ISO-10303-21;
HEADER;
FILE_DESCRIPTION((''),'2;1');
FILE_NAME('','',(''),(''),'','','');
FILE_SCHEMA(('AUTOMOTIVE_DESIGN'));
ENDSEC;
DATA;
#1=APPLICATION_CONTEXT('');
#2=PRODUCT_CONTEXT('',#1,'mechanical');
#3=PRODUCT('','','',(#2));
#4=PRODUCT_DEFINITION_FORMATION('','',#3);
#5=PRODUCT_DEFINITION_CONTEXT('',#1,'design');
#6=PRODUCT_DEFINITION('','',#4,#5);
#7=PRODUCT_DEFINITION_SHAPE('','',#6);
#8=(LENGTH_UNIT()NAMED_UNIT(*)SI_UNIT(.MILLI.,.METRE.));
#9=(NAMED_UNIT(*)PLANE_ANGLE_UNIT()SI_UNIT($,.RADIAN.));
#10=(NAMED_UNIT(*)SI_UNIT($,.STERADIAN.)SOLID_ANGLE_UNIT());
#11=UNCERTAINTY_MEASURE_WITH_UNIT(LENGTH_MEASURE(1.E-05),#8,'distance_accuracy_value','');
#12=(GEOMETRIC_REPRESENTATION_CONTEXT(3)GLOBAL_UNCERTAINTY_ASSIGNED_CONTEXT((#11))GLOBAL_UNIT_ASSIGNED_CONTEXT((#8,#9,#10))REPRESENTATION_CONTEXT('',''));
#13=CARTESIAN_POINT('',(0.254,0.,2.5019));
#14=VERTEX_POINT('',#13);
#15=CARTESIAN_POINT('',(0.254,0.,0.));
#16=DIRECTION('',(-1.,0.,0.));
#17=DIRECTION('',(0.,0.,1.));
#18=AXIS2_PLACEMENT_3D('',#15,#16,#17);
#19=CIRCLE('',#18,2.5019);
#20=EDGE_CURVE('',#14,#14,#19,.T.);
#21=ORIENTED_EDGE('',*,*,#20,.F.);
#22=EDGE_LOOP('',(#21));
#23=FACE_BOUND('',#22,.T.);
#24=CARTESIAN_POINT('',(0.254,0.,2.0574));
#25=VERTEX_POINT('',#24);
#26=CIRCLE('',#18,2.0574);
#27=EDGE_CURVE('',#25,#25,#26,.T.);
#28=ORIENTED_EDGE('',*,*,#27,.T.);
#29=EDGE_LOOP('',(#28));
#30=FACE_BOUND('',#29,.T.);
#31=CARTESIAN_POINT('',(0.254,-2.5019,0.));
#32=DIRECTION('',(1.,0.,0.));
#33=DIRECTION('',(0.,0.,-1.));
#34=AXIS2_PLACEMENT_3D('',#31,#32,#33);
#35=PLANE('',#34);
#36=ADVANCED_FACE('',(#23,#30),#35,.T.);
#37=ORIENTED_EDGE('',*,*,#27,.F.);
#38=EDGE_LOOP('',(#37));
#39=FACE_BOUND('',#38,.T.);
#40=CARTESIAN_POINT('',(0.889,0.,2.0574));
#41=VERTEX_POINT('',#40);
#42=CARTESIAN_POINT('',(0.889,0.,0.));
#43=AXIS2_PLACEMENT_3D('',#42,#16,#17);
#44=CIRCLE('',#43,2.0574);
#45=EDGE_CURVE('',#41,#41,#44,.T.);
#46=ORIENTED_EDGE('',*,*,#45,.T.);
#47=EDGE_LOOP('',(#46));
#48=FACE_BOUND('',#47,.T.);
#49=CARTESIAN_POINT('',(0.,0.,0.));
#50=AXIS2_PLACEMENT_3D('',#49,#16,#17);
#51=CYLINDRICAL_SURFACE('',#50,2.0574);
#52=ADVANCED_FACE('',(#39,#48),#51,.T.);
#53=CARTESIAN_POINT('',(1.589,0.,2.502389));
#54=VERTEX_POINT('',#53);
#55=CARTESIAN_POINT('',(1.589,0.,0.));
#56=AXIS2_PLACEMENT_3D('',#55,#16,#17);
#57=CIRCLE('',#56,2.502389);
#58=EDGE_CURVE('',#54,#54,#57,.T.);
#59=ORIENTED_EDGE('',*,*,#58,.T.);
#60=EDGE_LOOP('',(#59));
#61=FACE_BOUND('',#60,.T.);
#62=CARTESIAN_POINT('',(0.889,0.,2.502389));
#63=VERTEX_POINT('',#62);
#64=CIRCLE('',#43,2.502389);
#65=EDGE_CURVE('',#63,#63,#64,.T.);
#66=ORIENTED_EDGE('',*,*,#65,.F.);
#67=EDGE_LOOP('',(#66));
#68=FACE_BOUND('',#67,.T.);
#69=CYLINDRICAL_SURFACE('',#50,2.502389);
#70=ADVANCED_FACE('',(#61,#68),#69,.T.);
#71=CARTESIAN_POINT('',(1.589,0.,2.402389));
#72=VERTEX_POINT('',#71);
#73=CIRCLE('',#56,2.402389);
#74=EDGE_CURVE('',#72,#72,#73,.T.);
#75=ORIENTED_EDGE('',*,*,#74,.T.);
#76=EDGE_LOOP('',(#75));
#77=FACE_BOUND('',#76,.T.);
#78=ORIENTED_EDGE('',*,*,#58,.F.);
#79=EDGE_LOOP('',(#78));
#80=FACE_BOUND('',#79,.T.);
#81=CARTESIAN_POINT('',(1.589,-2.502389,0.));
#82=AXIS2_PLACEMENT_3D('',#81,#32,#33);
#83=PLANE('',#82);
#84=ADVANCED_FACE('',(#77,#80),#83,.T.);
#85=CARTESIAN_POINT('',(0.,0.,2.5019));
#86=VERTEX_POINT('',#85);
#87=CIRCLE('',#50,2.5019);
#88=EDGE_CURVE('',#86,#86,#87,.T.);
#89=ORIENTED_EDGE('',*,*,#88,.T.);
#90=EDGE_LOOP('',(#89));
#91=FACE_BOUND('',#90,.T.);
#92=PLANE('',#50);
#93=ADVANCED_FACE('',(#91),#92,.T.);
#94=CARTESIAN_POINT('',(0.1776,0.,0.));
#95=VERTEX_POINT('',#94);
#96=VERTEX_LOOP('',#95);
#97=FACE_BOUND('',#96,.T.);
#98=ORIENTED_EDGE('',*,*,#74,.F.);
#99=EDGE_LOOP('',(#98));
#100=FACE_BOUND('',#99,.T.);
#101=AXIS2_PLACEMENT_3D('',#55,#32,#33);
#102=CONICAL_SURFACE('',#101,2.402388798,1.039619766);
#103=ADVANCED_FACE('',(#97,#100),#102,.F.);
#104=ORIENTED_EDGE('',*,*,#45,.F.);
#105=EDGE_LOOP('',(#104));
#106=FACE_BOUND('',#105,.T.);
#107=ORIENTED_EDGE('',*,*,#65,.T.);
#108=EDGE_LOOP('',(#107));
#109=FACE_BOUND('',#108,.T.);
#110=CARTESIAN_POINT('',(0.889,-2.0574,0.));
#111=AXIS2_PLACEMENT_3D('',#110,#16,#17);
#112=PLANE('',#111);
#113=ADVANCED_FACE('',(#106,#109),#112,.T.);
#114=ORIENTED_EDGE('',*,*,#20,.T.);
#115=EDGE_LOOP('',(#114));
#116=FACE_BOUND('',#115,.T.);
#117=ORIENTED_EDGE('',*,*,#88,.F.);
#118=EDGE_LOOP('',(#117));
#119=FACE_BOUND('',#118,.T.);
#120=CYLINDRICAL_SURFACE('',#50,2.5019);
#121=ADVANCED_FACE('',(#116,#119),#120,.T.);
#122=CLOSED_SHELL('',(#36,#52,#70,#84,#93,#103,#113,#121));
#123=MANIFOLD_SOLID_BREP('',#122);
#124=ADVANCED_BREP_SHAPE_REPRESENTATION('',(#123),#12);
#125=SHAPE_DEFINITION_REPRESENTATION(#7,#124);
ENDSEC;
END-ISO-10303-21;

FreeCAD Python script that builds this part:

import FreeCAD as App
import Part
import Sketcher
from FreeCAD import Vector


def add_polygon(sketch, points):
    """Adds a closed chain of lines whose ends are joined by coincident constraints."""
    first, n = sketch.GeometryCount, len(points)
    for a, b in zip(points, points[1:] + points[:1]):
        sketch.addGeometry(Part.LineSegment(App.Vector(*a, 0), App.Vector(*b, 0)), False)
    for i in range(n):
        sketch.addConstraint(Sketcher.Constraint("Coincident", first + i, 2, first + (i + 1) % n, 1))

doc = App.newDocument("Part")
body = doc.addObject("PartDesign::Body", "Body")

sketch1 = body.newObject("Sketcher::SketchObject", "Sketch")
sketch1.AttachmentSupport = (doc.getObject("XY_Plane"), [""])
sketch1.MapMode = "FlatFace"
add_polygon(sketch1, [(0, 0), (0, -2.5), (0.25, -2.5), (0.25, -2.06), (0.89, -2.06), (0.89, -2.5), (1.59, -2.5), (1.59, -2.4), (0.18, 0)])
sketch1.addConstraint([
    Sketcher.Constraint("Vertical", 0),
    Sketcher.Constraint("Horizontal", 1),
    Sketcher.Constraint("Vertical", 2),
    Sketcher.Constraint("Horizontal", 3),
    Sketcher.Constraint("Vertical", 4),
    Sketcher.Constraint("Horizontal", 5),
    Sketcher.Constraint("Vertical", 6),
    Sketcher.Constraint("Horizontal", 8),
    Sketcher.Constraint("Coincident", 8, 2, -1, 1),
    Sketcher.Constraint("DistanceX", 5, 1, 5, 2, 0.7),
    Sketcher.Constraint("DistanceY", 6, 1, 6, 2, 0.1),
    Sketcher.Constraint("DistanceX", 1, 1, 1, 2, 0.254),
    Sketcher.Constraint("DistanceX", 3, 1, 3, 2, 0.635),
    Sketcher.Constraint("DistanceX", 8, 2, 8, 1, 0.1776),
    Sketcher.Constraint("DistanceY", 0, 2, 0, 1, 2.5019),
    Sketcher.Constraint("DistanceY", 2, 1, 2, 2, 0.4445),
    Sketcher.Constraint("DistanceY", 4, 2, 4, 1, 0.444989),
])
revolution = body.newObject("PartDesign::Revolution", "Revolution")
revolution.Profile = sketch1
revolution.ReferenceAxis = (sketch1, ["H_Axis"])
revolution.Angle = 360

doc.recompute()
